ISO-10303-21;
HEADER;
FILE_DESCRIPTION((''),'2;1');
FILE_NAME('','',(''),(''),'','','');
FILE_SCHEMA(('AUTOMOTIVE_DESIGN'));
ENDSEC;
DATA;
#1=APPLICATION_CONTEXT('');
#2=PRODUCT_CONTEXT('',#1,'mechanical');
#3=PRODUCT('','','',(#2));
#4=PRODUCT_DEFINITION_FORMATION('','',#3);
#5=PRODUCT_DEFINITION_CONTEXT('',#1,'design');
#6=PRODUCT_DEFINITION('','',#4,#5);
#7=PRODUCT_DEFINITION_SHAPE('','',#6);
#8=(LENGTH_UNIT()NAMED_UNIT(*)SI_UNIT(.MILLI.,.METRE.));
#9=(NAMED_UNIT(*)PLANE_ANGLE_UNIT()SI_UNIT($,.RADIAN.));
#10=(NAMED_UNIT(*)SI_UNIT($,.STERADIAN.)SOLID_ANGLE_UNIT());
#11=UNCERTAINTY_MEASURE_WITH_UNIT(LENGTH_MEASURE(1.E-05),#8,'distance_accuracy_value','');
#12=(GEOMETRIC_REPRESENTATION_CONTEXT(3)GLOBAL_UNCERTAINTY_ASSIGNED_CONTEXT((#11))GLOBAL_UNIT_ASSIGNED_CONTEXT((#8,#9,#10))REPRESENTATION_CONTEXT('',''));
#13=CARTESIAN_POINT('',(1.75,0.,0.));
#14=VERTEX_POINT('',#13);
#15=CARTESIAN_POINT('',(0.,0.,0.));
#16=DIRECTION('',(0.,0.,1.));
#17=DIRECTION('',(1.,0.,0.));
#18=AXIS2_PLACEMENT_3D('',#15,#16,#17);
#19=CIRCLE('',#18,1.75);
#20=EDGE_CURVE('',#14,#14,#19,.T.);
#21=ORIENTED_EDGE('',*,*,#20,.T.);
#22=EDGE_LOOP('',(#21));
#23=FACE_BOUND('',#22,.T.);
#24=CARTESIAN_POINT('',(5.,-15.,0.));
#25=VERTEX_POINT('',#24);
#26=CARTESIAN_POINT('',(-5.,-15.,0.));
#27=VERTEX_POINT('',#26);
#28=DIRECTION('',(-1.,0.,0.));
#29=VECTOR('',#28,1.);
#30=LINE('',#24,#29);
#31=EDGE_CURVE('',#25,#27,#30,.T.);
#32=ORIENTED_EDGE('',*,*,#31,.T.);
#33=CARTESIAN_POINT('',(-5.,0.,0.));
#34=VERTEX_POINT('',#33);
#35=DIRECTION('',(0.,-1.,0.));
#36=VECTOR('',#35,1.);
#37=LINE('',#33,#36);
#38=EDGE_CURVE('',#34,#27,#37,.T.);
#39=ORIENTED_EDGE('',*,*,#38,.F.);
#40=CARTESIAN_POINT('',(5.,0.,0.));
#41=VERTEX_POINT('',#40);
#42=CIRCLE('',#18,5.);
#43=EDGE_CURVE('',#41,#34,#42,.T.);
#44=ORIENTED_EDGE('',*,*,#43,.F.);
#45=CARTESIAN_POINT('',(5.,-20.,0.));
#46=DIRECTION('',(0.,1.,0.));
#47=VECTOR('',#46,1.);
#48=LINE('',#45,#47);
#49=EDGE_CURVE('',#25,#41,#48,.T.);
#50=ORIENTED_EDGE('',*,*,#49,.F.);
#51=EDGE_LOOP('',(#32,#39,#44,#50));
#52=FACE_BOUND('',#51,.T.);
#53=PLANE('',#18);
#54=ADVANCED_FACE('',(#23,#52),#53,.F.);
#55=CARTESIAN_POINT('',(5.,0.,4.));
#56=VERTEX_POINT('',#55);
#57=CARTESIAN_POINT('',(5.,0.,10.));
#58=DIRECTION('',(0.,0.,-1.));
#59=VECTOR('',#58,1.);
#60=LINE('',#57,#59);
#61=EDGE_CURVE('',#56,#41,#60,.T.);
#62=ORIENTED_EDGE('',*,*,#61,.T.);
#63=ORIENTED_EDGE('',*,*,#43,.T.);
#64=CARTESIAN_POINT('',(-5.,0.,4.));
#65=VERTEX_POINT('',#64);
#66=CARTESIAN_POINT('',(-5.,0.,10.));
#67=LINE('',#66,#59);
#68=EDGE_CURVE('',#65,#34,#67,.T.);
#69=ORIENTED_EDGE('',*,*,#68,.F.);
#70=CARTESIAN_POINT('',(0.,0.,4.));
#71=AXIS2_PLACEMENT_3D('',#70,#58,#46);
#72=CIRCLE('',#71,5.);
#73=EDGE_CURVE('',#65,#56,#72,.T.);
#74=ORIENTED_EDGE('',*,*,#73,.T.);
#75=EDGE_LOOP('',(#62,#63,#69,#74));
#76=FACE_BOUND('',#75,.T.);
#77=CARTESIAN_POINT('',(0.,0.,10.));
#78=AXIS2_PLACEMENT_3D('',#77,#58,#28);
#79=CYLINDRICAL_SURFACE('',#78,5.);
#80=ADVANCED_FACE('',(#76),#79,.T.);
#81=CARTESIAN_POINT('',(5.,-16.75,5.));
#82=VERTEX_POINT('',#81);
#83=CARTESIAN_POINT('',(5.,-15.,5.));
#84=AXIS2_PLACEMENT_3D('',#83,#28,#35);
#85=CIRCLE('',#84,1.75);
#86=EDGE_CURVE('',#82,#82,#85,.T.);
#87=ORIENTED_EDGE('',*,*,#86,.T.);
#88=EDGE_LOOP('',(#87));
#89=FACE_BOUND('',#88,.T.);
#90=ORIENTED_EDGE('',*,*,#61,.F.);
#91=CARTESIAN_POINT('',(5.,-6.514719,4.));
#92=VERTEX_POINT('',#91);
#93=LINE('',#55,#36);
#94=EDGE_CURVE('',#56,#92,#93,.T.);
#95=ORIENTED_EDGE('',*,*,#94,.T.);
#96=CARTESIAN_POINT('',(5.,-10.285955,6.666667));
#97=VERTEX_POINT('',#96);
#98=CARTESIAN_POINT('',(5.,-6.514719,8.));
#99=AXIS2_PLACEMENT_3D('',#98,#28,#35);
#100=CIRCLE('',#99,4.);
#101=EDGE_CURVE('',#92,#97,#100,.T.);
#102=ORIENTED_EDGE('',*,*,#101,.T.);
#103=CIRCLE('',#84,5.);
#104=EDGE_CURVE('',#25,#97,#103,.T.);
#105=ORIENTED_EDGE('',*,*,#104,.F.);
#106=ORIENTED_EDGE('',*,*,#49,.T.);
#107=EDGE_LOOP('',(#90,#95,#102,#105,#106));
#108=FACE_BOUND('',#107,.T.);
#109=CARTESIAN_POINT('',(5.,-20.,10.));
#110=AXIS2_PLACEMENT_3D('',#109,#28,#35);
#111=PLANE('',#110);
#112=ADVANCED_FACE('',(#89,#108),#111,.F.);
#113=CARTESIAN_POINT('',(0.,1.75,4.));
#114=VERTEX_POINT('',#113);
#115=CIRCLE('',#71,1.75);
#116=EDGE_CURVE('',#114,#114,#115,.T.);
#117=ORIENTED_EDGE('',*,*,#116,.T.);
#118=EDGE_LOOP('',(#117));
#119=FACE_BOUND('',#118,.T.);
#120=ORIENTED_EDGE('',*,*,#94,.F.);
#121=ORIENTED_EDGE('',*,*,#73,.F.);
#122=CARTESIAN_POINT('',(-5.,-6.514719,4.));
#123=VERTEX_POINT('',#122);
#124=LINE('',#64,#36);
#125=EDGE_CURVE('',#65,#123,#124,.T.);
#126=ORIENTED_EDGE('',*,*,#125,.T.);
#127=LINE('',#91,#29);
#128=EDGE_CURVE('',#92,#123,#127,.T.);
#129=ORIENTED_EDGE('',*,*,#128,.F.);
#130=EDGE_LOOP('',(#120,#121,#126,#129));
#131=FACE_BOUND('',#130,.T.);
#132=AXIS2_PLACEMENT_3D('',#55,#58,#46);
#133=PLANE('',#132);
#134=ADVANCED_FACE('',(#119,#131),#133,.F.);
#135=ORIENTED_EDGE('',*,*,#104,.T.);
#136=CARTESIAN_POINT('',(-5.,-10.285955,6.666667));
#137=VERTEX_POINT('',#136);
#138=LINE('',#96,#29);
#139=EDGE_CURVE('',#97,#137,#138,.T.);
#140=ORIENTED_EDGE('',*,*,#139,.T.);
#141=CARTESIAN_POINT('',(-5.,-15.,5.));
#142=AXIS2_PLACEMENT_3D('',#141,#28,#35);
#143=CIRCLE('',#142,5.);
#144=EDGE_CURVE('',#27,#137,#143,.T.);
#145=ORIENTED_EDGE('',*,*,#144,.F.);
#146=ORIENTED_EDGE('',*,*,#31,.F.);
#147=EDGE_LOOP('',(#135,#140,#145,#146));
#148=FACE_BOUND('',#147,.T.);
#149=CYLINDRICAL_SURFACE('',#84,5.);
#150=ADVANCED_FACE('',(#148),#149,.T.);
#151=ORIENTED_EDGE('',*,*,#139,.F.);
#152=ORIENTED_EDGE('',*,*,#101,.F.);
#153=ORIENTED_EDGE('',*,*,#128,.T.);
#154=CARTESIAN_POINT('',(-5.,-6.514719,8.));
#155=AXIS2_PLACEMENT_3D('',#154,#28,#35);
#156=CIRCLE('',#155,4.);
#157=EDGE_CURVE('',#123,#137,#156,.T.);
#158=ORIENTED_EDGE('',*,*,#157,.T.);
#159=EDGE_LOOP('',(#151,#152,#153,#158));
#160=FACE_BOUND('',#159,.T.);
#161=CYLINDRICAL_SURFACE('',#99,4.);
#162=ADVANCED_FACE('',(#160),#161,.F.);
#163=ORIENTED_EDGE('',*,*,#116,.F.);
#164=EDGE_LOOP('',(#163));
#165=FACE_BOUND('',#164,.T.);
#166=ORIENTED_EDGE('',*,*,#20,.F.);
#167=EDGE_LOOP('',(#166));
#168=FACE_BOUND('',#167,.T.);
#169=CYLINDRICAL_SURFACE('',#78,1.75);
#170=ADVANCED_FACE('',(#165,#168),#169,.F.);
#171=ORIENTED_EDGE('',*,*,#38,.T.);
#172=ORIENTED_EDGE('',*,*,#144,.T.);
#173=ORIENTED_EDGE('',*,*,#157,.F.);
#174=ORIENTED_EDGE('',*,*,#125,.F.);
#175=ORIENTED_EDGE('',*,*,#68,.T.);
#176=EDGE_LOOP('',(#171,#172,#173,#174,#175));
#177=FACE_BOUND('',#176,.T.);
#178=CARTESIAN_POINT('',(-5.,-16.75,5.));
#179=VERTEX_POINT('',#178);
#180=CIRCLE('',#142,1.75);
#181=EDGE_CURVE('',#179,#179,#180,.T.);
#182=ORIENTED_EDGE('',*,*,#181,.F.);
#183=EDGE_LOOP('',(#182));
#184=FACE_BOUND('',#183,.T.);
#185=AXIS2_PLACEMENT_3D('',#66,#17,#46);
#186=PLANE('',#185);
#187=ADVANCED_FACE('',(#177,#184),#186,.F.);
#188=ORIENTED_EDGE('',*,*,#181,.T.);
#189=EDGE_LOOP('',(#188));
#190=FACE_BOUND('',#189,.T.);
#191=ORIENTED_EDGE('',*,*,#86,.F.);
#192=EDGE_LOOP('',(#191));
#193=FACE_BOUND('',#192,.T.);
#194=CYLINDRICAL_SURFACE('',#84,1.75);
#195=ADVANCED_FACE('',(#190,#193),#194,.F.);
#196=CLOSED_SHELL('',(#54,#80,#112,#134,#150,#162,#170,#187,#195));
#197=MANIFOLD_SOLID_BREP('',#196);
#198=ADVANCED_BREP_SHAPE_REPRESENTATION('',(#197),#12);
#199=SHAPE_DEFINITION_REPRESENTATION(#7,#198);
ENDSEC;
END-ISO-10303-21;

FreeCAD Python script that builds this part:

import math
import FreeCAD as App
import Part
import Sketcher
from FreeCAD import Vector

doc = App.newDocument("Part")
body = doc.addObject("PartDesign::Body", "Body")

# Sketch on XY plane
sketch1 = doc.addObject("Sketcher::SketchObject", "Sketch")
body.addObject(sketch1)
sketch1.AttachmentSupport = (doc.XY_Plane, [""])
sketch1.MapMode = "FlatFace"
sketch1.addGeometry([
    Part.LineSegment(Vector(-5, 0, 0), Vector(-5, -20, 0)),  # 0
    Part.LineSegment(Vector(-5, -20, 0), Vector(5, -20, 0)),  # 1
    Part.LineSegment(Vector(5, -20, 0), Vector(5, 0, 0)),  # 2
    Part.ArcOfCircle(Part.Circle(Vector(0, 0, 0), Vector(0, 0, 1), 5), math.radians(0), math.radians(180)),  # 3
    Part.Circle(Vector(0, 0, 0), Vector(0, 0, 1), 1.8),  # 4
], False)
sketch1.addConstraint([
    Sketcher.Constraint("Coincident", 0, 2, 1, 1),
    Sketcher.Constraint("Coincident", 1, 2, 2, 1),
    Sketcher.Constraint("Tangent", 2, 2, 3, 1),
    Sketcher.Constraint("Tangent", 3, 2, 0, 1),
    Sketcher.Constraint("Vertical", 0),
    Sketcher.Constraint("Horizontal", 1),
    Sketcher.Constraint("Vertical", 2),
    Sketcher.Constraint("Coincident", 3, 3, -1, 1),
    Sketcher.Constraint("Coincident", 4, 3, -1, 1),
    Sketcher.Constraint("Radius", 3, 5.0),
    Sketcher.Constraint("Diameter", 4, 3.5),
    Sketcher.Constraint("DistanceY", 0, 2, 0, 1, 20.0),
])
pad1 = doc.addObject("PartDesign::Pad", "Pad")
body.addObject(pad1)
pad1.Profile = sketch1
pad1.Length = 10

# Sketch on YZ plane
sketch2 = doc.addObject("Sketcher::SketchObject", "Sketch001")
body.addObject(sketch2)
sketch2.AttachmentSupport = (doc.YZ_Plane, [""])
sketch2.MapMode = "FlatFace"
sketch2.AttachmentOffset = App.Placement(Vector(0, 0, -5), App.Rotation())
sketch2.addGeometry([
    Part.ArcOfCircle(Part.Circle(Vector(-6.5, 8, 0), Vector(0, 0, 1), 4), math.radians(-161), math.radians(-90)),  # 0
    Part.ArcOfCircle(Part.Circle(Vector(-15, 5, 0), Vector(0, 0, 1), 5), math.radians(19), math.radians(90)),  # 1
    Part.LineSegment(Vector(-15, 10, 0), Vector(5, 10, 0)),  # 2
    Part.LineSegment(Vector(5, 10, 0), Vector(5, 4, 0)),  # 3
    Part.LineSegment(Vector(5, 4, 0), Vector(-6.5, 4, 0)),  # 4
    Part.LineSegment(Vector(-20, 10, 0), Vector(-15, 10, 0)),  # 5
    Part.ArcOfCircle(Part.Circle(Vector(-15, 5, 0), Vector(0, 0, 1), 5), math.radians(90), math.radians(180)),  # 6
    Part.LineSegment(Vector(-20, 5, 0), Vector(-20, 10, 0)),  # 7
    Part.ArcOfCircle(Part.Circle(Vector(-15, 5, 0), Vector(0, 0, 1), 5), math.radians(180), math.radians(270)),  # 8
    Part.LineSegment(Vector(-15, 0, 0), Vector(-20, 0, 0)),  # 9
    Part.LineSegment(Vector(-20, 0, 0), Vector(-20, 5, 0)),  # 10
    Part.Circle(Vector(-15, 5, 0), Vector(0, 0, 1), 1.8),  # 11
], False)
sketch2.addConstraint([
    Sketcher.Constraint("Tangent", 0, 1, 1, 1),
    Sketcher.Constraint("Tangent", 1, 2, 2, 1),
    Sketcher.Constraint("Coincident", 2, 2, 3, 1),
    Sketcher.Constraint("Coincident", 3, 2, 4, 1),
    Sketcher.Constraint("Tangent", 4, 2, 0, 2),
    Sketcher.Constraint("Tangent", 5, 2, 6, 1),
    Sketcher.Constraint("Tangent", 6, 2, 7, 1),
    Sketcher.Constraint("Coincident", 7, 2, 5, 1),
    Sketcher.Constraint("Tangent", 8, 2, 9, 1),
    Sketcher.Constraint("Coincident", 9, 2, 10, 1),
    Sketcher.Constraint("Tangent", 10, 2, 8, 1),
    Sketcher.Constraint("Horizontal", 2),
    Sketcher.Constraint("Vertical", 3),
    Sketcher.Constraint("Horizontal", 4),
    Sketcher.Constraint("Horizontal", 5),
    Sketcher.Constraint("Vertical", 7),
    Sketcher.Constraint("Horizontal", 9),
    Sketcher.Constraint("Vertical", 10),
    Sketcher.Constraint("Coincident", 6, 3, 1, 3),
    Sketcher.Constraint("Coincident", 8, 3, 1, 3),
    Sketcher.Constraint("Coincident", 11, 3, 1, 3),
    Sketcher.Constraint("Equal", 1, 6),
    Sketcher.Constraint("Equal", 6, 8),
    Sketcher.Constraint("PointOnObject", 8, 2, -1),
    Sketcher.Constraint("Radius", 0, 4.0),
    Sketcher.Constraint("Radius", 1, 5.0),
    Sketcher.Constraint("Diameter", 11, 3.5),
    Sketcher.Constraint("DistanceX", 2, 1, 2, 2, 20.0),
    Sketcher.Constraint("DistanceY", 3, 2, 3, 1, 6.0),
    Sketcher.Constraint("DistanceX", 1, 3, -1, 1, 15.0),
])
pocket1 = doc.addObject("PartDesign::Pocket", "Pocket")
body.addObject(pocket1)
pocket1.Profile = sketch2
pocket1.Length = 10
pocket1.Reversed = True

doc.recompute()
